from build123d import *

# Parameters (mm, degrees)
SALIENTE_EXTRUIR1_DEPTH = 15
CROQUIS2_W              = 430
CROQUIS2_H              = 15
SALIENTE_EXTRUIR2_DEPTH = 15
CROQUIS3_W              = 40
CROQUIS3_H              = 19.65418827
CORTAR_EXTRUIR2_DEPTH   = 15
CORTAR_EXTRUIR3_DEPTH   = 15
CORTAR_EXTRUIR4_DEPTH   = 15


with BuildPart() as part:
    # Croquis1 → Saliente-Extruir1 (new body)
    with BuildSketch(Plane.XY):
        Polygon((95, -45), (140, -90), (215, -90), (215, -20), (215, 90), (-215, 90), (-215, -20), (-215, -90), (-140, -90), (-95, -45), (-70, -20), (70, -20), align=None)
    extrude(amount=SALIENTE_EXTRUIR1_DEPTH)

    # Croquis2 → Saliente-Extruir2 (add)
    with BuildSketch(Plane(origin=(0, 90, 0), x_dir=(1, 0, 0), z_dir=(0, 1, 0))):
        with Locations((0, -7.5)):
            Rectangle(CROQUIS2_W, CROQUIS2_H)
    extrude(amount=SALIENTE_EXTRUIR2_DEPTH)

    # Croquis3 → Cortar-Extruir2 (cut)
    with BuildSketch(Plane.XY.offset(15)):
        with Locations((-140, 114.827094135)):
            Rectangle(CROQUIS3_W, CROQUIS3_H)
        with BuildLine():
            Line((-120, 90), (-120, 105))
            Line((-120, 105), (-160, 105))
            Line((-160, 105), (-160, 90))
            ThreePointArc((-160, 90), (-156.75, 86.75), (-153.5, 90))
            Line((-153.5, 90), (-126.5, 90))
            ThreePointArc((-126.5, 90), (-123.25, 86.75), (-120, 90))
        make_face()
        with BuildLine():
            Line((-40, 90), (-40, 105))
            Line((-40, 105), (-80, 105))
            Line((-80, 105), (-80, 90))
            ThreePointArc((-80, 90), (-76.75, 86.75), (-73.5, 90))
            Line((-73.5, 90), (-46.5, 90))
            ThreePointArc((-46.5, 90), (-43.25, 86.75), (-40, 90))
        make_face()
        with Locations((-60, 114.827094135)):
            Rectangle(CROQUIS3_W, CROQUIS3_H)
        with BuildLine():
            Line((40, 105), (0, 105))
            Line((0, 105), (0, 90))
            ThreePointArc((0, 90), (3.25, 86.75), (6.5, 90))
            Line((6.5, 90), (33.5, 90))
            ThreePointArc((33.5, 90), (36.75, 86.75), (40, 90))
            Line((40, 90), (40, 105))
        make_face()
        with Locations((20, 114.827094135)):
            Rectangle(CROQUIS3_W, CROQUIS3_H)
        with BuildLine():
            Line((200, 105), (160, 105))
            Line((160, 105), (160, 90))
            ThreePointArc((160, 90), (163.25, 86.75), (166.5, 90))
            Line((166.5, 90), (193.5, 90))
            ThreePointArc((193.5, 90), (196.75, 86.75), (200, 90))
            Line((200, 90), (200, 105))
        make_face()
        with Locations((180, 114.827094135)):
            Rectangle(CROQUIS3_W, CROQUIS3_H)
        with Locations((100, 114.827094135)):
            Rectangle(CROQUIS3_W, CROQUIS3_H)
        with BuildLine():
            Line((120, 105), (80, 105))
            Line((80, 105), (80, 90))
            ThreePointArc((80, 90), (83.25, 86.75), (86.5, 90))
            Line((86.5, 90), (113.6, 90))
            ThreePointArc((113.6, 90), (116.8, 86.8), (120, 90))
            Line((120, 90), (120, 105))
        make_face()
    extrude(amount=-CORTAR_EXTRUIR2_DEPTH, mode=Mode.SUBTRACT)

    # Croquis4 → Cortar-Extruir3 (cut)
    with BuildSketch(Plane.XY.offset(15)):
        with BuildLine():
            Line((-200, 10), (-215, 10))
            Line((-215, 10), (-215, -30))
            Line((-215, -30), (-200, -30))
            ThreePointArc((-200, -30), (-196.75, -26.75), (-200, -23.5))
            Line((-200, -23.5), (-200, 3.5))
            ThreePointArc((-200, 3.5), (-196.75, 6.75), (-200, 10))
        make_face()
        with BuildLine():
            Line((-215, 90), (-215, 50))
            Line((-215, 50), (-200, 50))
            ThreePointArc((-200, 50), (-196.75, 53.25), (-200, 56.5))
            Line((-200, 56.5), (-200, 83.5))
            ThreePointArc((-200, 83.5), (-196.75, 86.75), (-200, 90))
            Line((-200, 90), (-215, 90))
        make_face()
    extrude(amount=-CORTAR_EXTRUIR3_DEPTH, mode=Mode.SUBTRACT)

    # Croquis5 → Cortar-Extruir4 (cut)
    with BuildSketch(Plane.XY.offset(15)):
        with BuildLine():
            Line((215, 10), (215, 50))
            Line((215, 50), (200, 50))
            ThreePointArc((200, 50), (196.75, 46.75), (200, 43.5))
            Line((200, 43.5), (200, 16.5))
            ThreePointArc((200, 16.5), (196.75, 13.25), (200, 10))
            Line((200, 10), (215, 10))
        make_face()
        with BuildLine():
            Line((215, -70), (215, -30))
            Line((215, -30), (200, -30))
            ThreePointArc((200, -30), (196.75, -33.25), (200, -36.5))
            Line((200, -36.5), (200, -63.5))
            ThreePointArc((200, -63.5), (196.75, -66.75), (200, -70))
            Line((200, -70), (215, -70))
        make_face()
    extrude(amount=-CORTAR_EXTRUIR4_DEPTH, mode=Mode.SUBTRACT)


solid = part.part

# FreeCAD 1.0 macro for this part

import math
import FreeCAD as App
import Part
import Sketcher

V = App.Vector
Q = App.Units.Quantity


def add_polygon(sketch, points):
    """Adds a closed chain of lines whose ends are joined by coincident constraints."""
    first, n = sketch.GeometryCount, len(points)
    for a, b in zip(points, points[1:] + points[:1]):
        sketch.addGeometry(Part.LineSegment(App.Vector(*a, 0), App.Vector(*b, 0)), False)
    for i in range(n):
        sketch.addConstraint(Sketcher.Constraint("Coincident", first + i, 2, first + (i + 1) % n, 1))

doc = App.newDocument("Part")
body = doc.addObject("PartDesign::Body", "Body")

sketch1 = body.newObject("Sketcher::SketchObject", "Sketch")
sketch1.AttachmentSupport = (doc.getObject("XY_Plane"), [""])
sketch1.MapMode = "FlatFace"
add_polygon(sketch1, [(140, -90), (215, -90), (215, 90), (-215, 90), (-215, -90), (-140, -90), (-70, -20), (70, -20)])
sketch1.addConstraint([
    Sketcher.Constraint("Horizontal", 0),
    Sketcher.Constraint("Vertical", 1),
    Sketcher.Constraint("Horizontal", 2),
    Sketcher.Constraint("Vertical", 3),
    Sketcher.Constraint("Horizontal", 4),
    Sketcher.Constraint("Horizontal", 6),
    Sketcher.Constraint("Symmetric", 0, 2, 2, 2, -1, 1),
    Sketcher.Constraint("Symmetric", 4, 2, 7, 2, -2),
    Sketcher.Constraint("Perpendicular", 5, 7),
    Sketcher.Constraint("Equal", 5, 7),
    Sketcher.Constraint("DistanceX", 0, 1, 0, 2, Q("75 mm")),
    Sketcher.Constraint("DistanceX", 2, 2, 2, 1, Q("430 mm")),
    Sketcher.Constraint("DistanceX", 6, 1, 6, 2, Q("140 mm")),
    Sketcher.Constraint("DistanceY", 1, 1, 1, 2, Q("180 mm")),
])
pad1 = body.newObject("PartDesign::Pad", "Pad")
pad1.Profile = sketch1
pad1.Length = 15

sketch2 = body.newObject("Sketcher::SketchObject", "Sketch001")
sketch2.AttachmentSupport = (doc.getObject("XZ_Plane"), [""])
sketch2.MapMode = "FlatFace"
sketch2.AttachmentOffset = App.Placement(V(0, 0, -90), App.Rotation())
add_polygon(sketch2, [(-215, 0), (-215, 15), (215, 15), (215, 0)])
sketch2.addConstraint([
    Sketcher.Constraint("Vertical", 0),
    Sketcher.Constraint("Horizontal", 1),
    Sketcher.Constraint("Vertical", 2),
    Sketcher.Constraint("Horizontal", 3),
    Sketcher.Constraint("Symmetric", 2, 2, 3, 2, -1, 1),
    Sketcher.Constraint("DistanceX", 1, 1, 1, 2, Q("430 mm")),
    Sketcher.Constraint("DistanceY", 0, 1, 0, 2, Q("15 mm")),
])
pad2 = body.newObject("PartDesign::Pad", "Pad001")
pad2.Profile = sketch2
pad2.Length = 15
pad2.Reversed = True

sketch3 = body.newObject("Sketcher::SketchObject", "Sketch002")
sketch3.AttachmentSupport = (doc.getObject("XY_Plane"), [""])
sketch3.MapMode = "FlatFace"
sketch3.AttachmentOffset = App.Placement(V(0, 0, 15), App.Rotation())
sketch3.addGeometry([
    Part.LineSegment(V(-160, 124.7, 0), V(-160, 90, 0)),
    Part.ArcOfCircle(Part.Circle(V(-156.8, 90, 0), V(0, 0, 1), 3.2), math.radians(180), math.radians(360)),
    Part.LineSegment(V(-153.5, 90, 0), V(-126.5, 90, 0)),
    Part.ArcOfCircle(Part.Circle(V(-123.2, 90, 0), V(0, 0, 1), 3.2), math.radians(180), math.radians(360)),
    Part.LineSegment(V(-120, 90, 0), V(-120, 124.7, 0)),
    Part.LineSegment(V(-120, 124.7, 0), V(-160, 124.7, 0)),
    Part.LineSegment(V(-40, 90, 0), V(-40, 124.7, 0)),
    Part.LineSegment(V(-40, 124.7, 0), V(-80, 124.7, 0)),
    Part.LineSegment(V(-80, 124.7, 0), V(-80, 90, 0)),
    Part.ArcOfCircle(Part.Circle(V(-76.8, 90, 0), V(0, 0, 1), 3.2), math.radians(180), math.radians(360)),
    Part.LineSegment(V(-73.5, 90, 0), V(-46.5, 90, 0)),
    Part.ArcOfCircle(Part.Circle(V(-43.2, 90, 0), V(0, 0, 1), 3.2), math.radians(180), math.radians(360)),
    Part.ArcOfCircle(Part.Circle(V(3.2, 90, 0), V(0, 0, 1), 3.2), math.radians(180), math.radians(360)),
    Part.LineSegment(V(6.5, 90, 0), V(33.5, 90, 0)),
    Part.ArcOfCircle(Part.Circle(V(36.8, 90, 0), V(0, 0, 1), 3.2), math.radians(180), math.radians(360)),
    Part.LineSegment(V(40, 90, 0), V(40, 124.7, 0)),
    Part.LineSegment(V(40, 124.7, 0), V(0, 124.7, 0)),
    Part.LineSegment(V(0, 124.7, 0), V(0, 90, 0)),
    Part.ArcOfCircle(Part.Circle(V(163.2, 90, 0), V(0, 0, 1), 3.2), math.radians(180), math.radians(360)),
    Part.LineSegment(V(166.5, 90, 0), V(193.5, 90, 0)),
    Part.ArcOfCircle(Part.Circle(V(196.8, 90, 0), V(0, 0, 1), 3.2), math.radians(180), math.radians(360)),
    Part.LineSegment(V(200, 90, 0), V(200, 124.7, 0)),
    Part.LineSegment(V(200, 124.7, 0), V(160, 124.7, 0)),
    Part.LineSegment(V(160, 124.7, 0), V(160, 90, 0)),
    Part.LineSegment(V(80, 124.7, 0), V(80, 90, 0)),
    Part.ArcOfCircle(Part.Circle(V(83.2, 90, 0), V(0, 0, 1), 3.2), math.radians(180), math.radians(360)),
    Part.LineSegment(V(86.5, 90, 0), V(113.6, 90, 0)),
    Part.ArcOfCircle(Part.Circle(V(116.8, 90, 0), V(0, 0, 1), 3.2), math.radians(180), math.radians(360)),
    Part.LineSegment(V(120, 90, 0), V(120, 124.7, 0)),
    Part.LineSegment(V(120, 124.7, 0), V(80, 124.7, 0)),
], False)
sketch3.addConstraint([
    Sketcher.Constraint("Tangent", 0, 2, 1, 1),
    Sketcher.Constraint("Coincident", 1, 2, 2, 1),
    Sketcher.Constraint("Coincident", 2, 2, 3, 1),
    Sketcher.Constraint("Tangent", 3, 2, 4, 1),
    Sketcher.Constraint("Coincident", 4, 2, 5, 1),
    Sketcher.Constraint("Coincident", 5, 2, 0, 1),
    Sketcher.Constraint("Coincident", 6, 2, 7, 1),
    Sketcher.Constraint("Coincident", 7, 2, 8, 1),
    Sketcher.Constraint("Tangent", 8, 2, 9, 1),
    Sketcher.Constraint("Coincident", 9, 2, 10, 1),
    Sketcher.Constraint("Coincident", 10, 2, 11, 1),
    Sketcher.Constraint("Tangent", 11, 2, 6, 1),
    Sketcher.Constraint("Coincident", 12, 2, 13, 1),
    Sketcher.Constraint("Coincident", 13, 2, 14, 1),
    Sketcher.Constraint("Tangent", 14, 2, 15, 1),
    Sketcher.Constraint("Coincident", 15, 2, 16, 1),
    Sketcher.Constraint("Coincident", 16, 2, 17, 1),
    Sketcher.Constraint("Tangent", 17, 2, 12, 1),
    Sketcher.Constraint("Coincident", 18, 2, 19, 1),
    Sketcher.Constraint("Coincident", 19, 2, 20, 1),
    Sketcher.Constraint("Tangent", 20, 2, 21, 1),
    Sketcher.Constraint("Coincident", 21, 2, 22, 1),
    Sketcher.Constraint("Coincident", 22, 2, 23, 1),
    Sketcher.Constraint("Tangent", 23, 2, 18, 1),
    Sketcher.Constraint("Tangent", 24, 2, 25, 1),
    Sketcher.Constraint("Coincident", 25, 2, 26, 1),
    Sketcher.Constraint("Coincident", 26, 2, 27, 1),
    Sketcher.Constraint("Tangent", 27, 2, 28, 1),
    Sketcher.Constraint("Coincident", 28, 2, 29, 1),
    Sketcher.Constraint("Coincident", 29, 2, 24, 1),
    Sketcher.Constraint("Vertical", 0),
    Sketcher.Constraint("Horizontal", 2),
    Sketcher.Constraint("Vertical", 4),
    Sketcher.Constraint("Horizontal", 5),
    Sketcher.Constraint("Vertical", 6),
    Sketcher.Constraint("Horizontal", 7),
    Sketcher.Constraint("Vertical", 8),
    Sketcher.Constraint("Horizontal", 10),
    Sketcher.Constraint("Horizontal", 13),
    Sketcher.Constraint("Vertical", 15),
    Sketcher.Constraint("Horizontal", 16),
    Sketcher.Constraint("Vertical", 17),
    Sketcher.Constraint("Horizontal", 19),
    Sketcher.Constraint("Vertical", 21),
    Sketcher.Constraint("Horizontal", 22),
    Sketcher.Constraint("Vertical", 23),
    Sketcher.Constraint("Vertical", 24),
    Sketcher.Constraint("Horizontal", 26),
    Sketcher.Constraint("Vertical", 28),
    Sketcher.Constraint("Horizontal", 29),
    Sketcher.Constraint("Equal", 1, 3),
    Sketcher.Constraint("Equal", 3, 9),
    Sketcher.Constraint("Equal", 9, 11),
    Sketcher.Constraint("Equal", 11, 12),
    Sketcher.Constraint("Equal", 12, 14),
    Sketcher.Constraint("Equal", 14, 18),
    Sketcher.Constraint("Equal", 18, 20),
    Sketcher.Constraint("Equal", 20, 25),
    Sketcher.Constraint("Symmetric", 11, 2, 14, 2, -2),
    Sketcher.Constraint("Symmetric", 5, 2, 22, 2, -2),
    Sketcher.Constraint("Symmetric", 8, 2, 24, 2, -2),
    Sketcher.Constraint("Symmetric", 3, 2, 27, 2, -2),
    Sketcher.Constraint("PointOnObject", 16, 2, -2),
    Sketcher.Constraint("Horizontal", 1, 3, 3, 3),
    Sketcher.Constraint("Horizontal", 3, 3, 9, 3),
    Sketcher.Constraint("Horizontal", 9, 3, 11, 3),
    Sketcher.Constraint("Horizontal", 11, 3, 12, 3),
    Sketcher.Constraint("Horizontal", 14, 3, 18, 3),
    Sketcher.Constraint("Horizontal", 18, 3, 20, 3),
    Sketcher.Constraint("Horizontal", 0, 2, 1, 2),
    Sketcher.Constraint("Horizontal", 5, 2, 6, 2),
    Sketcher.Constraint("Horizontal", 8, 2, 9, 2),
    Sketcher.Constraint("Horizontal", 11, 2, 12, 2),
    Sketcher.Constraint("Horizontal", 7, 2, 15, 2),
    Sketcher.Constraint("Horizontal", 17, 2, 18, 2),
    Sketcher.Constraint("Horizontal", 24, 2, 25, 2),
    Sketcher.Constraint("Horizontal", 22, 2, 28, 2),
    Sketcher.Constraint("Equal", 5, 7),
    Sketcher.Constraint("Equal", 10, 13),
    Sketcher.Constraint("Equal", 13, 19),
    Sketcher.Constraint("Equal", 22, 29),
    Sketcher.Constraint("Radius", 27, Q("3.2 mm")),
    Sketcher.Constraint("DistanceX", 2, 1, 2, 2, Q("27 mm")),
    Sketcher.Constraint("DistanceX", 5, 2, 5, 1, Q("40 mm")),
    Sketcher.Constraint("DistanceY", -1, 1, 1, 3, Q("90 mm")),
    Sketcher.Constraint("DistanceY", 0, 2, 0, 1, Q("34.654188 mm")),
])
pocket1 = body.newObject("PartDesign::Pocket", "Pocket")
pocket1.Profile = sketch3
pocket1.Length = 15

sketch4 = body.newObject("Sketcher::SketchObject", "Sketch003")
sketch4.AttachmentSupport = (doc.getObject("XY_Plane"), [""])
sketch4.MapMode = "FlatFace"
sketch4.AttachmentOffset = App.Placement(V(0, 0, 15), App.Rotation())
sketch4.addGeometry([
    Part.LineSegment(V(-200, 10, 0), V(-215, 10, 0)),
    Part.LineSegment(V(-215, 10, 0), V(-215, -30, 0)),
    Part.LineSegment(V(-215, -30, 0), V(-200, -30, 0)),
    Part.ArcOfCircle(Part.Circle(V(-200, -26.8, 0), V(0, 0, 1), 3.2), math.radians(-90), math.radians(90)),
    Part.LineSegment(V(-200, -23.5, 0), V(-200, 3.5, 0)),
    Part.ArcOfCircle(Part.Circle(V(-200, 6.8, 0), V(0, 0, 1), 3.2), math.radians(-90), math.radians(90)),
    Part.LineSegment(V(-215, 90, 0), V(-215, 50, 0)),
    Part.LineSegment(V(-215, 50, 0), V(-200, 50, 0)),
    Part.ArcOfCircle(Part.Circle(V(-200, 53.2, 0), V(0, 0, 1), 3.2), math.radians(-90), math.radians(90)),
    Part.LineSegment(V(-200, 56.5, 0), V(-200, 83.5, 0)),
    Part.ArcOfCircle(Part.Circle(V(-200, 86.8, 0), V(0, 0, 1), 3.2), math.radians(-90), math.radians(90)),
    Part.LineSegment(V(-200, 90, 0), V(-215, 90, 0)),
], False)
sketch4.addConstraint([
    Sketcher.Constraint("Coincident", 0, 2, 1, 1),
    Sketcher.Constraint("Coincident", 1, 2, 2, 1),
    Sketcher.Constraint("Tangent", 2, 2, 3, 1),
    Sketcher.Constraint("Coincident", 3, 2, 4, 1),
    Sketcher.Constraint("Coincident", 4, 2, 5, 1),
    Sketcher.Constraint("Tangent", 5, 2, 0, 1),
    Sketcher.Constraint("Coincident", 6, 2, 7, 1),
    Sketcher.Constraint("Tangent", 7, 2, 8, 1),
    Sketcher.Constraint("Coincident", 8, 2, 9, 1),
    Sketcher.Constraint("Coincident", 9, 2, 10, 1),
    Sketcher.Constraint("Tangent", 10, 2, 11, 1),
    Sketcher.Constraint("Coincident", 11, 2, 6, 1),
    Sketcher.Constraint("Horizontal", 0),
    Sketcher.Constraint("Vertical", 1),
    Sketcher.Constraint("Horizontal", 2),
    Sketcher.Constraint("Vertical", 4),
    Sketcher.Constraint("Vertical", 6),
    Sketcher.Constraint("Horizontal", 7),
    Sketcher.Constraint("Vertical", 9),
    Sketcher.Constraint("Horizontal", 11),
    Sketcher.Constraint("Equal", 3, 5),
    Sketcher.Constraint("Equal", 5, 8),
    Sketcher.Constraint("Equal", 8, 10),
    Sketcher.Constraint("Vertical", 3, 3, 5, 3),
    Sketcher.Constraint("Vertical", 5, 3, 8, 3),
    Sketcher.Constraint("Vertical", 8, 3, 10, 3),
    Sketcher.Constraint("Vertical", 2, 2, 3, 2),
    Sketcher.Constraint("Vertical", 1, 2, 6, 2),
    Sketcher.Constraint("Vertical", 7, 2, 8, 2),
    Sketcher.Constraint("Equal", 1, 6),
    Sketcher.Constraint("DistanceX", 0, 2, 0, 1, Q("15 mm")),
    Sketcher.Constraint("DistanceY", 1, 2, 1, 1, Q("40 mm")),
    Sketcher.Constraint("DistanceY", 4, 1, 4, 2, Q("27 mm")),
    Sketcher.Constraint("DistanceX", 3, 3, -1, 1, Q("200 mm")),
    Sketcher.Constraint("DistanceY", -1, 1, 0, 2, Q("10 mm")),
    Sketcher.Constraint("DistanceY", -1, 1, 6, 2, Q("50 mm")),
])
pocket2 = body.newObject("PartDesign::Pocket", "Pocket001")
pocket2.Profile = sketch4
pocket2.Length = 15

sketch5 = body.newObject("Sketcher::SketchObject", "Sketch004")
sketch5.AttachmentSupport = (doc.getObject("XY_Plane"), [""])
sketch5.MapMode = "FlatFace"
sketch5.AttachmentOffset = App.Placement(V(0, 0, 15), App.Rotation())
sketch5.addGeometry([
    Part.LineSegment(V(215, 10, 0), V(215, 50, 0)),
    Part.LineSegment(V(215, 50, 0), V(200, 50, 0)),
    Part.ArcOfCircle(Part.Circle(V(200, 46.8, 0), V(0, 0, 1), 3.2), math.radians(90), math.radians(270)),
    Part.LineSegment(V(200, 43.5, 0), V(200, 16.5, 0)),
    Part.ArcOfCircle(Part.Circle(V(200, 13.2, 0), V(0, 0, 1), 3.2), math.radians(90), math.radians(270)),
    Part.LineSegment(V(200, 10, 0), V(215, 10, 0)),
    Part.LineSegment(V(215, -70, 0), V(215, -30, 0)),
    Part.LineSegment(V(215, -30, 0), V(200, -30, 0)),
    Part.ArcOfCircle(Part.Circle(V(200, -33.2, 0), V(0, 0, 1), 3.2), math.radians(90), math.radians(270)),
    Part.LineSegment(V(200, -36.5, 0), V(200, -63.5, 0)),
    Part.ArcOfCircle(Part.Circle(V(200, -66.8, 0), V(0, 0, 1), 3.2), math.radians(90), math.radians(270)),
    Part.LineSegment(V(200, -70, 0), V(215, -70, 0)),
], False)
sketch5.addConstraint([
    Sketcher.Constraint("Coincident", 0, 2, 1, 1),
    Sketcher.Constraint("Tangent", 1, 2, 2, 1),
    Sketcher.Constraint("Coincident", 2, 2, 3, 1),
    Sketcher.Constraint("Coincident", 3, 2, 4, 1),
    Sketcher.Constraint("Tangent", 4, 2, 5, 1),
    Sketcher.Constraint("Coincident", 5, 2, 0, 1),
    Sketcher.Constraint("Coincident", 6, 2, 7, 1),
    Sketcher.Constraint("Tangent", 7, 2, 8, 1),
    Sketcher.Constraint("Coincident", 8, 2, 9, 1),
    Sketcher.Constraint("Coincident", 9, 2, 10, 1),
    Sketcher.Constraint("Tangent", 10, 2, 11, 1),
    Sketcher.Constraint("Coincident", 11, 2, 6, 1),
    Sketcher.Constraint("Vertical", 0),
    Sketcher.Constraint("Horizontal", 1),
    Sketcher.Constraint("Vertical", 3),
    Sketcher.Constraint("Horizontal", 5),
    Sketcher.Constraint("Vertical", 6),
    Sketcher.Constraint("Horizontal", 7),
    Sketcher.Constraint("Vertical", 9),
    Sketcher.Constraint("Horizontal", 11),
    Sketcher.Constraint("Equal", 2, 4),
    Sketcher.Constraint("Equal", 4, 8),
    Sketcher.Constraint("Equal", 8, 10),
    Sketcher.Constraint("Vertical", 2, 3, 4, 3),
    Sketcher.Constraint("Vertical", 4, 3, 8, 3),
    Sketcher.Constraint("Vertical", 8, 3, 10, 3),
    Sketcher.Constraint("Vertical", 1, 2, 2, 2),
    Sketcher.Constraint("Vertical", 5, 2, 6, 2),
    Sketcher.Constraint("Vertical", 7, 2, 8, 2),
    Sketcher.Constraint("Equal", 0, 6),
    Sketcher.Constraint("DistanceX", 1, 2, 1, 1, Q("15 mm")),
    Sketcher.Constraint("DistanceY", 0, 1, 0, 2, Q("40 mm")),
    Sketcher.Constraint("DistanceY", 3, 2, 3, 1, Q("27 mm")),
    Sketcher.Constraint("DistanceX", -1, 1, 2, 3, Q("200 mm")),
    Sketcher.Constraint("DistanceY", -1, 1, 0, 2, Q("50 mm")),
    Sketcher.Constraint("DistanceY", 6, 2, -1, 1, Q("30 mm")),
])
pocket3 = body.newObject("PartDesign::Pocket", "Pocket002")
pocket3.Profile = sketch5
pocket3.Length = 15

doc.recompute()
